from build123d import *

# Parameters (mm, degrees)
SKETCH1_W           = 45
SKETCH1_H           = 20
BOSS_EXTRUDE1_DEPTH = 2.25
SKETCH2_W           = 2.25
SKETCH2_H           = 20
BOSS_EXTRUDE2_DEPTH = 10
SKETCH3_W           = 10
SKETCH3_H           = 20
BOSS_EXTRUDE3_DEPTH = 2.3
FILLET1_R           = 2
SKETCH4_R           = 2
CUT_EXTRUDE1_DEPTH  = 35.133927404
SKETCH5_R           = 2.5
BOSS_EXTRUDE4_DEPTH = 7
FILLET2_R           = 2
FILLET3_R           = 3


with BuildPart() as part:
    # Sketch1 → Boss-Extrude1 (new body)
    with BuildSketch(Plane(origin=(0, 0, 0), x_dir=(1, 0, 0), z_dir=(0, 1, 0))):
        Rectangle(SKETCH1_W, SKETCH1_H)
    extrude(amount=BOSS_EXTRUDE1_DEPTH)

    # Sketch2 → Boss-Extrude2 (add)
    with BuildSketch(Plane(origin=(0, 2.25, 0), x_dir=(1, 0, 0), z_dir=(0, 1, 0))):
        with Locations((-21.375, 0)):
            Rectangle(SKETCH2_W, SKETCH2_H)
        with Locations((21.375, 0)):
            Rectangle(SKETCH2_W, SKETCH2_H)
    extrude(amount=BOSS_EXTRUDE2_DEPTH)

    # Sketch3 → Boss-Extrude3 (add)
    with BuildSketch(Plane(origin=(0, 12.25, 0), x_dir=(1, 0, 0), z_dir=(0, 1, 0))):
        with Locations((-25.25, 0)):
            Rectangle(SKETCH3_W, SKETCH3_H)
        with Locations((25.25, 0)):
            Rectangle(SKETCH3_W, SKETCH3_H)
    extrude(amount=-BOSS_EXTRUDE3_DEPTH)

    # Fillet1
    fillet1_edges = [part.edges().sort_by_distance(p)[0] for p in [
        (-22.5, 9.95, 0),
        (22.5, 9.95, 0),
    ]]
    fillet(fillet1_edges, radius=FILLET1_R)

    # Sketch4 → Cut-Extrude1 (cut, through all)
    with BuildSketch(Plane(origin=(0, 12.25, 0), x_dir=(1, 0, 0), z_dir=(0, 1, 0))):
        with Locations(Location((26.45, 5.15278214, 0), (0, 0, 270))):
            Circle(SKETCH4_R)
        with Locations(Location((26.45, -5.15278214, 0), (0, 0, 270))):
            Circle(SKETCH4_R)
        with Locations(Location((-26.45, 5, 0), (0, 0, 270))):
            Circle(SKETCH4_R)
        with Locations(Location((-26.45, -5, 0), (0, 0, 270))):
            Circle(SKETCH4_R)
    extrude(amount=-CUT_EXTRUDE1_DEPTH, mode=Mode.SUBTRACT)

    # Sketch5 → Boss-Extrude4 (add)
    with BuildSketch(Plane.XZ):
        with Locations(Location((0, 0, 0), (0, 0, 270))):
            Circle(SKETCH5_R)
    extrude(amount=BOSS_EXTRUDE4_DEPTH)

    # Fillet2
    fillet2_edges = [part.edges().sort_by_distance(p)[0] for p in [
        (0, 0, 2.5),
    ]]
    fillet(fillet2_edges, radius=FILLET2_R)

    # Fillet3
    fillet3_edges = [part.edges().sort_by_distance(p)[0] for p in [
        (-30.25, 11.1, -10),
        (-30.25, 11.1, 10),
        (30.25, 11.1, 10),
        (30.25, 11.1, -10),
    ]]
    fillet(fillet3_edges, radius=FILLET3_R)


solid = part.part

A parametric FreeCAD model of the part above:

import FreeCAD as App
import Part
import Sketcher


def edges_at(feature, points):
    """Names of the edges that pass closest to the given points."""
    edges = feature.Shape.Edges
    near = lambda p: min(range(len(edges)), key=lambda i: edges[i].distToShape(Part.Vertex(*p))[0])
    return sorted({f"Edge{near(p) + 1}" for p in points})


def add_polygon(sketch, points):
    """Adds a closed chain of lines whose ends are joined by coincident constraints."""
    first, n = sketch.GeometryCount, len(points)
    for a, b in zip(points, points[1:] + points[:1]):
        sketch.addGeometry(Part.LineSegment(App.Vector(*a, 0), App.Vector(*b, 0)), False)
    for i in range(n):
        sketch.addConstraint(Sketcher.Constraint("Coincident", first + i, 2, first + (i + 1) % n, 1))

doc = App.newDocument("Part")
body = doc.addObject("PartDesign::Body", "Body")

# Sketch on XZ plane
sketch1 = doc.addObject("Sketcher::SketchObject", "Sketch")
body.addObject(sketch1)
sketch1.AttachmentSupport = (doc.XZ_Plane, [""])
sketch1.MapMode = "FlatFace"
add_polygon(sketch1, [(-22, -10), (-22, 10), (22, 10), (22, -10)])  # lines 0-3
sketch1.addConstraint(Sketcher.Constraint("Vertical", 0))
sketch1.addConstraint(Sketcher.Constraint("Horizontal", 1))
sketch1.addConstraint(Sketcher.Constraint("Vertical", 2))
sketch1.addConstraint(Sketcher.Constraint("Horizontal", 3))
sketch1.addConstraint(Sketcher.Constraint("Symmetric", 0, 2, 2, 2, -1, 1))
sketch1.addConstraint(Sketcher.Constraint("DistanceX", 1, 1, 1, 2, 45.0))
sketch1.addConstraint(Sketcher.Constraint("DistanceY", 0, 1, 0, 2, 20.0))
pad1 = doc.addObject("PartDesign::Pad", "Pad")
body.addObject(pad1)
pad1.Profile = sketch1
pad1.Length = 2.25
pad1.Reversed = True

# Sketch on XZ plane
sketch2 = doc.addObject("Sketcher::SketchObject", "Sketch001")
body.addObject(sketch2)
sketch2.AttachmentSupport = (doc.XZ_Plane, [""])
sketch2.MapMode = "FlatFace"
sketch2.AttachmentOffset = App.Placement(App.Vector(0, 0, -2.25), App.Rotation())
add_polygon(sketch2, [(-22.5, -10), (-22.5, 10), (-20.2, 10), (-20.2, -10)])  # lines 0-3
add_polygon(sketch2, [(20.2, -10), (20.2, 10), (22.5, 10), (22.5, -10)])  # lines 4-7
sketch2.addConstraint(Sketcher.Constraint("Vertical", 0))
sketch2.addConstraint(Sketcher.Constraint("Horizontal", 1))
sketch2.addConstraint(Sketcher.Constraint("Vertical", 2))
sketch2.addConstraint(Sketcher.Constraint("Horizontal", 3))
sketch2.addConstraint(Sketcher.Constraint("Vertical", 4))
sketch2.addConstraint(Sketcher.Constraint("Horizontal", 5))
sketch2.addConstraint(Sketcher.Constraint("Vertical", 6))
sketch2.addConstraint(Sketcher.Constraint("Horizontal", 7))
sketch2.addConstraint(Sketcher.Constraint("Symmetric", 2, 2, 4, 2, -1, 1))
sketch2.addConstraint(Sketcher.Constraint("Symmetric", 0, 2, 6, 2, -1, 1))
sketch2.addConstraint(Sketcher.Constraint("Horizontal", 1, 2, 4, 2))
sketch2.addConstraint(Sketcher.Constraint("DistanceY", 0, 1, 0, 2, 20.0))
sketch2.addConstraint(Sketcher.Constraint("DistanceX", 0, 2, 5, 2, 45.0))
sketch2.addConstraint(Sketcher.Constraint("DistanceX", 1, 1, 1, 2, 2.25))
pad2 = doc.addObject("PartDesign::Pad", "Pad001")
body.addObject(pad2)
pad2.Profile = sketch2
pad2.Length = 10
pad2.Reversed = True

# Sketch on XZ plane
sketch3 = doc.addObject("Sketcher::SketchObject", "Sketch002")
body.addObject(sketch3)
sketch3.AttachmentSupport = (doc.XZ_Plane, [""])
sketch3.MapMode = "FlatFace"
sketch3.AttachmentOffset = App.Placement(App.Vector(0, 0, -12.25), App.Rotation())
add_polygon(sketch3, [(-30, -10), (-30, 10), (-20, 10), (-20, -10)])  # lines 0-3
add_polygon(sketch3, [(20, -10), (20, 10), (30, 10), (30, -10)])  # lines 4-7
sketch3.addConstraint(Sketcher.Constraint("Vertical", 0))
sketch3.addConstraint(Sketcher.Constraint("Horizontal", 1))
sketch3.addConstraint(Sketcher.Constraint("Vertical", 2))
sketch3.addConstraint(Sketcher.Constraint("Horizontal", 3))
sketch3.addConstraint(Sketcher.Constraint("Vertical", 4))
sketch3.addConstraint(Sketcher.Constraint("Horizontal", 5))
sketch3.addConstraint(Sketcher.Constraint("Vertical", 6))
sketch3.addConstraint(Sketcher.Constraint("Horizontal", 7))
sketch3.addConstraint(Sketcher.Constraint("Symmetric", 2, 2, 4, 2, -1, 1))
sketch3.addConstraint(Sketcher.Constraint("Symmetric", 0, 2, 6, 2, -1, 1))
sketch3.addConstraint(Sketcher.Constraint("Horizontal", 1, 2, 4, 2))
sketch3.addConstraint(Sketcher.Constraint("DistanceX", 1, 1, 1, 2, 10.0))
sketch3.addConstraint(Sketcher.Constraint("DistanceY", 0, 1, 0, 2, 20.0))
sketch3.addConstraint(Sketcher.Constraint("DistanceX", 1, 2, 4, 2, 40.5))
pad3 = doc.addObject("PartDesign::Pad", "Pad002")
body.addObject(pad3)
pad3.Profile = sketch3
pad3.Length = 2.3
doc.recompute()

fillet = doc.addObject("PartDesign::Fillet", "Fillet")
body.addObject(fillet)
fillet.Base = (pad3, edges_at(pad3, [(-22.5, 9.95, 0), (22.5, 9.95, 0)]))
fillet.Radius = 2

# Sketch on XZ plane
sketch4 = doc.addObject("Sketcher::SketchObject", "Sketch003")
body.addObject(sketch4)
sketch4.AttachmentSupport = (doc.XZ_Plane, [""])
sketch4.MapMode = "FlatFace"
sketch4.AttachmentOffset = App.Placement(App.Vector(0, 0, -12.25), App.Rotation())
sketch4.addGeometry(Part.Circle(App.Vector(26.4, -5.2, 0), App.Vector(0, 0, 1), 2), False)
sketch4.addGeometry(Part.Circle(App.Vector(26.4, 5.2, 0), App.Vector(0, 0, 1), 2), False)
sketch4.addGeometry(Part.Circle(App.Vector(-26.4, -5, 0), App.Vector(0, 0, 1), 2), False)
sketch4.addGeometry(Part.Circle(App.Vector(-26.4, 5, 0), App.Vector(0, 0, 1), 2), False)
sketch4.addConstraint(Sketcher.Constraint("Equal", 0, 1))
sketch4.addConstraint(Sketcher.Constraint("Equal", 1, 2))
sketch4.addConstraint(Sketcher.Constraint("Equal", 2, 3))
sketch4.addConstraint(Sketcher.Constraint("Symmetric", 0, 3, 1, 3, -1))
sketch4.addConstraint(Sketcher.Constraint("Symmetric", 2, 3, 3, 3, -1))
sketch4.addConstraint(Sketcher.Constraint("Diameter", 0, 4.0))
sketch4.addConstraint(Sketcher.Constraint("DistanceY", 2, 3, -1, 1, 5.0))
sketch4.addConstraint(Sketcher.Constraint("DistanceX", 2, 3, 0, 3, 52.9))
sketch4.addConstraint(Sketcher.Constraint("DistanceX", -1, 1, 0, 3, 26.45))
sketch4.addConstraint(Sketcher.Constraint("DistanceY", 0, 3, -1, 1, 5.152782))
pocket1 = doc.addObject("PartDesign::Pocket", "Pocket")
body.addObject(pocket1)
pocket1.Profile = sketch4
pocket1.Type = "ThroughAll"
pocket1.Reversed = True

# Sketch on XZ plane
sketch5 = doc.addObject("Sketcher::SketchObject", "Sketch004")
body.addObject(sketch5)
sketch5.AttachmentSupport = (doc.XZ_Plane, [""])
sketch5.MapMode = "FlatFace"
sketch5.addGeometry(Part.Circle(App.Vector(0, 0, 0), App.Vector(0, 0, 1), 2.5), False)
sketch5.addConstraint(Sketcher.Constraint("Coincident", 0, 3, -1, 1))
sketch5.addConstraint(Sketcher.Constraint("Diameter", 0, 5.0))
pad4 = doc.addObject("PartDesign::Pad", "Pad003")
body.addObject(pad4)
pad4.Profile = sketch5
pad4.Length = 7
doc.recompute()

fillet2 = doc.addObject("PartDesign::Fillet", "Fillet001")
body.addObject(fillet2)
fillet2.Base = (pad4, edges_at(pad4, [(0, 0, 2.5)]))
fillet2.Radius = 2
doc.recompute()

fillet3 = doc.addObject("PartDesign::Fillet", "Fillet002")
body.addObject(fillet3)
fillet3.Base = (fillet2, edges_at(fillet2, [
    (-30.25, 11.1, -10),
    (-30.25, 11.1, 10),
    (30.25, 11.1, 10),
    (30.25, 11.1, -10),
]))
fillet3.Radius = 3

doc.recompute()
